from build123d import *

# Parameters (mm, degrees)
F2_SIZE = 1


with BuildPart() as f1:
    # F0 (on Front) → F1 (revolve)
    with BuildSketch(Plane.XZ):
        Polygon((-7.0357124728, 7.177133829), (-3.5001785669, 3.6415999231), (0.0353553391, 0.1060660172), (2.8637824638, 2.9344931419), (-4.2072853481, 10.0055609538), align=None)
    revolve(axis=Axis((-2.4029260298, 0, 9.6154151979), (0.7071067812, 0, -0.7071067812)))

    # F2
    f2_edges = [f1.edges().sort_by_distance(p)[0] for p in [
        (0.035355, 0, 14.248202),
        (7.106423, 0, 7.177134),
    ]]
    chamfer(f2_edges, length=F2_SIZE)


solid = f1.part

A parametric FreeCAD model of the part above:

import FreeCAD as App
import Part
import Sketcher

V = App.Vector
Q = App.Units.Quantity


def edges_at(feature, points):
    """Names of the edges that pass closest to the given points."""
    edges = feature.Shape.Edges
    near = lambda p: min(range(len(edges)), key=lambda i: edges[i].distToShape(Part.Vertex(*p))[0])
    return sorted({f"Edge{near(p) + 1}" for p in points})

doc = App.newDocument("Part")
params = doc.addObject("Spreadsheet::Sheet", "Params")
for row, (alias, value) in enumerate([
    ("sketch1_length", "5 mm"),
    ("sketch1_length2", "4 mm"),
    ("revolution_angle", "360 deg"),
    ("chamfer_size", "1 mm"),
], start=1):
    params.set(f"A{row}", alias)
    params.set(f"B{row}", "=" + value)
    params.setAlias(f"B{row}", alias)

body = doc.addObject("PartDesign::Body", "Body")

# Sketch on XZ plane
sketch1 = body.newObject("Sketcher::SketchObject", "Sketch")
sketch1.AttachmentSupport = (doc.getObject("XZ_Plane"), [""])
sketch1.MapMode = "FlatFace"
sketch1.addGeometry([
    Part.LineSegment(V(-7, 7.2, 0), V(-3.5, 3.6, 0)),  # 0
    Part.LineSegment(V(-3.5, 3.6, 0), V(0, 0.1, 0)),  # 1
    Part.LineSegment(V(0, 0.1, 0), V(2.9, 2.9, 0)),  # 2
    Part.LineSegment(V(2.9, 2.9, 0), V(-4.2, 10, 0)),  # 3
    Part.LineSegment(V(-4.2, 10, 0), V(-7, 7.2, 0)),  # 4
], False)
sketch1.addGeometry(Part.LineSegment(V(-3.5, 10.7, 0), V(3.6, 3.6, 0)), True)  # axis
sketch1.addConstraint([
    Sketcher.Constraint("Coincident", 0, 2, 1, 1),
    Sketcher.Constraint("Coincident", 1, 2, 2, 1),
    Sketcher.Constraint("Coincident", 2, 2, 3, 1),
    Sketcher.Constraint("Coincident", 3, 2, 4, 1),
    Sketcher.Constraint("Coincident", 4, 2, 0, 1),
    Sketcher.Constraint("Parallel", 0, 1),
    Sketcher.Constraint("Perpendicular", 1, 2),
    Sketcher.Constraint("Perpendicular", 2, 3),
    Sketcher.Constraint("Perpendicular", 3, 4),
    Sketcher.Constraint("Perpendicular", 4, 5),
    Sketcher.Constraint("Horizontal", 0, 2, 5, 2),
    Sketcher.Constraint("Vertical", 0, 2, 5, 1),
    Sketcher.Constraint("Equal", 0, 1),
    Sketcher.Constraint("Equal", 3, 5),
    Sketcher.Constraint("Angle", 0, Q("-45 deg")),
    Sketcher.Constraint("Distance", 0, Q("5 mm")),
    Sketcher.Constraint("Distance", 2, Q("4 mm")),
    Sketcher.Constraint("DistanceY", -1, 1, 0, 2, Q("3.6416 mm")),
    Sketcher.Constraint("DistanceX", 0, 2, -1, 1, Q("3.500179 mm")),
])
sketch1.setExpression("Constraints[15]", "Params.sketch1_length")
sketch1.setExpression("Constraints[16]", "Params.sketch1_length2")
revolution = body.newObject("PartDesign::Revolution", "Revolution")
revolution.Profile = sketch1
revolution.ReferenceAxis = (sketch1, ["Axis0"])
revolution.setExpression("Angle", "Params.revolution_angle")
doc.recompute()

chamfer = body.newObject("PartDesign::Chamfer", "Chamfer")
chamfer.Base = (revolution, edges_at(revolution, [(0.035, 0, 14.248), (7.106, 0, 7.177)]))
chamfer.setExpression("Size", "Params.chamfer_size")

doc.recompute()
